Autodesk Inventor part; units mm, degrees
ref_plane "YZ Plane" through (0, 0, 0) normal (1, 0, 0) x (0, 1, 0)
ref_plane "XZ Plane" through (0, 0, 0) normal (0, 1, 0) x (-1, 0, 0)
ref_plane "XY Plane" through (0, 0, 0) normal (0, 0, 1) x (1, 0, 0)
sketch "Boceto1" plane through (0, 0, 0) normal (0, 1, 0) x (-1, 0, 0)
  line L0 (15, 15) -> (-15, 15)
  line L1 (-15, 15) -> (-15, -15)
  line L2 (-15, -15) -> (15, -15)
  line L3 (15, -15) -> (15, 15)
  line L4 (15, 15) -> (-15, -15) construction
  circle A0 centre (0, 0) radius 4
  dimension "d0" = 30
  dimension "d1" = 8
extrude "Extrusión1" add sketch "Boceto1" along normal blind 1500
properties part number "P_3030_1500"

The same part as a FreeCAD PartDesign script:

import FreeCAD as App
import Part
import Sketcher

doc = App.newDocument("Part")
body = doc.addObject("PartDesign::Body", "Body")

sketch1 = body.newObject("Sketcher::SketchObject", "Sketch")
sketch1.AttachmentSupport = (doc.getObject("XZ_Plane"), [""])
sketch1.MapMode = "FlatFace"
sketch1.addGeometry(Part.LineSegment(App.Vector(-15, -15, 0), App.Vector(-15, 15, 0)), False)
sketch1.addGeometry(Part.LineSegment(App.Vector(-15, 15, 0), App.Vector(15, 15, 0)), False)
sketch1.addGeometry(Part.LineSegment(App.Vector(15, 15, 0), App.Vector(15, -15, 0)), False)
sketch1.addGeometry(Part.LineSegment(App.Vector(15, -15, 0), App.Vector(-15, -15, 0)), False)
sketch1.addGeometry(Part.Circle(App.Vector(0, 0, 0), App.Vector(0, 0, 1), 4), False)
sketch1.addConstraint(Sketcher.Constraint("Coincident", 0, 2, 1, 1))
sketch1.addConstraint(Sketcher.Constraint("Coincident", 1, 2, 2, 1))
sketch1.addConstraint(Sketcher.Constraint("Coincident", 2, 2, 3, 1))
sketch1.addConstraint(Sketcher.Constraint("Coincident", 3, 2, 0, 1))
sketch1.addConstraint(Sketcher.Constraint("Vertical", 0))
sketch1.addConstraint(Sketcher.Constraint("Horizontal", 1))
sketch1.addConstraint(Sketcher.Constraint("Vertical", 2))
sketch1.addConstraint(Sketcher.Constraint("Horizontal", 3))
sketch1.addConstraint(Sketcher.Constraint("Coincident", 4, 3, -1, 1))
sketch1.addConstraint(Sketcher.Constraint("Symmetric", 0, 2, 2, 2, -1, 1))
sketch1.addConstraint(Sketcher.Constraint("Equal", 3, 0))
sketch1.addConstraint(Sketcher.Constraint("Diameter", 4, 8.0))
sketch1.addConstraint(Sketcher.Constraint("DistanceX", 1, 1, 1, 2, 30.0))
pad1 = body.newObject("PartDesign::Pad", "Pad")
pad1.Profile = sketch1
pad1.Length = 1500
pad1.Reversed = True

doc.recompute()
